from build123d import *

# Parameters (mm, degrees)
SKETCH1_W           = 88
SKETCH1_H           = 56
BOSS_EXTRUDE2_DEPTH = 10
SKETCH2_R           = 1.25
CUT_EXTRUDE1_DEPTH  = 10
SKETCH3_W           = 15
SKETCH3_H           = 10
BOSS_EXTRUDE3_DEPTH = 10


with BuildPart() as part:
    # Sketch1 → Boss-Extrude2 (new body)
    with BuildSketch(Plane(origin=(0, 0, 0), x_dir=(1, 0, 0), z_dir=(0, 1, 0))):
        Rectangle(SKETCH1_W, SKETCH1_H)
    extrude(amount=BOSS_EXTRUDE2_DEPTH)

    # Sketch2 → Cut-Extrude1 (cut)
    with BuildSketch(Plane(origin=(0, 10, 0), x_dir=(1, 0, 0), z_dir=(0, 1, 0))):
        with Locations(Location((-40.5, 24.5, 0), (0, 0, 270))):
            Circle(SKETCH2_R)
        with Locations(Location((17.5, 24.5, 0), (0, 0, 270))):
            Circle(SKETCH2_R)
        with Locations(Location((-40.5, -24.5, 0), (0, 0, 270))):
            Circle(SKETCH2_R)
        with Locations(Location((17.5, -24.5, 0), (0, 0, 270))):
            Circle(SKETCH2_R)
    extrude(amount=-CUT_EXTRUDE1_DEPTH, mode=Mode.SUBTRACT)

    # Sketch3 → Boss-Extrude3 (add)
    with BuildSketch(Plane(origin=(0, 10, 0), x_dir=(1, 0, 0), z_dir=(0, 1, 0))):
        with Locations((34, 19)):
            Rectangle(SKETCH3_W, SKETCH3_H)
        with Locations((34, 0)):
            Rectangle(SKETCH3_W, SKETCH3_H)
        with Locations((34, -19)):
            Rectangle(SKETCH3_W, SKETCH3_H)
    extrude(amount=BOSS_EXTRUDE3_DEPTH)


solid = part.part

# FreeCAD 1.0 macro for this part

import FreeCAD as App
import Part
import Sketcher
from FreeCAD import Vector


def add_polygon(sketch, points):
    """Adds a closed chain of lines whose ends are joined by coincident constraints."""
    first, n = sketch.GeometryCount, len(points)
    for a, b in zip(points, points[1:] + points[:1]):
        sketch.addGeometry(Part.LineSegment(App.Vector(*a, 0), App.Vector(*b, 0)), False)
    for i in range(n):
        sketch.addConstraint(Sketcher.Constraint("Coincident", first + i, 2, first + (i + 1) % n, 1))

doc = App.newDocument("Part")
params = doc.addObject("Spreadsheet::Sheet", "Params")
for row, (alias, value) in enumerate([
    ("sketch1_width", "88 mm"),
    ("sketch1_height", "56 mm"),
    ("pad1_length", "10 mm"),
    ("sketch2_diameter", "2.5 mm"),
    ("pocket1_length", "10 mm"),
    ("sketch3_width", "15 mm"),
    ("sketch3_height", "10 mm"),
    ("pad2_length", "10 mm"),
], start=1):
    params.set(f"A{row}", alias)
    params.set(f"B{row}", "=" + value)
    params.setAlias(f"B{row}", alias)

body = doc.addObject("PartDesign::Body", "Body")

# Sketch on XZ plane
sketch1 = body.newObject("Sketcher::SketchObject", "Sketch")
sketch1.AttachmentSupport = (doc.getObject("XZ_Plane"), [""])
sketch1.MapMode = "FlatFace"
add_polygon(sketch1, [(-44, -28), (-44, 28), (44, 28), (44, -28)])  # lines 0-3
sketch1.addConstraint([
    Sketcher.Constraint("Vertical", 0),
    Sketcher.Constraint("Horizontal", 1),
    Sketcher.Constraint("Vertical", 2),
    Sketcher.Constraint("Horizontal", 3),
    Sketcher.Constraint("Symmetric", 0, 2, 2, 2, -1, 1),
    Sketcher.Constraint("DistanceX", 1, 1, 1, 2, 88.0),
    Sketcher.Constraint("DistanceY", 0, 1, 0, 2, 56.0),
])
sketch1.setExpression("Constraints[9]", "Params.sketch1_width")
sketch1.setExpression("Constraints[10]", "Params.sketch1_height")
pad1 = body.newObject("PartDesign::Pad", "Pad")
pad1.Profile = sketch1
pad1.setExpression("Length", "Params.pad1_length")
pad1.Reversed = True

# Sketch on XZ plane
sketch2 = body.newObject("Sketcher::SketchObject", "Sketch001")
sketch2.AttachmentSupport = (doc.getObject("XZ_Plane"), [""])
sketch2.MapMode = "FlatFace"
sketch2.AttachmentOffset = App.Placement(Vector(0, 0, -10), App.Rotation())
sketch2.addGeometry([
    Part.Circle(Vector(-40.5, -24.5, 0), Vector(0, 0, 1), 1.2),
    Part.Circle(Vector(17.5, -24.5, 0), Vector(0, 0, 1), 1.2),
    Part.Circle(Vector(-40.5, 24.5, 0), Vector(0, 0, 1), 1.2),
    Part.Circle(Vector(17.5, 24.5, 0), Vector(0, 0, 1), 1.2),
], False)
sketch2.addConstraint([
    Sketcher.Constraint("Equal", 0, 1),
    Sketcher.Constraint("Equal", 1, 2),
    Sketcher.Constraint("Equal", 2, 3),
    Sketcher.Constraint("Symmetric", 0, 3, 2, 3, -1),
    Sketcher.Constraint("Symmetric", 1, 3, 3, 3, -1),
    Sketcher.Constraint("Horizontal", 0, 3, 1, 3),
    Sketcher.Constraint("Diameter", 0, 2.5),
    Sketcher.Constraint("DistanceX", 0, 3, 1, 3, 58.0),
    Sketcher.Constraint("DistanceY", 0, 3, 2, 3, 49.0),
    Sketcher.Constraint("DistanceX", 0, 3, -1, 1, 40.5),
])
sketch2.setExpression("Constraints[6]", "Params.sketch2_diameter")
pocket1 = body.newObject("PartDesign::Pocket", "Pocket")
pocket1.Profile = sketch2
pocket1.setExpression("Length", "Params.pocket1_length")
pocket1.Reversed = True

# Sketch on XZ plane
sketch3 = body.newObject("Sketcher::SketchObject", "Sketch002")
sketch3.AttachmentSupport = (doc.getObject("XZ_Plane"), [""])
sketch3.MapMode = "FlatFace"
sketch3.AttachmentOffset = App.Placement(Vector(0, 0, -10), App.Rotation())
add_polygon(sketch3, [(26, -24), (26, -14), (42, -14), (42, -24)])  # lines 0-3
add_polygon(sketch3, [(26, -5), (26, 5), (42, 5), (42, -5)])  # lines 4-7
add_polygon(sketch3, [(26, 14), (26, 24), (42, 24), (42, 14)])  # lines 8-11
sketch3.addConstraint([
    Sketcher.Constraint("Vertical", 0),
    Sketcher.Constraint("Horizontal", 1),
    Sketcher.Constraint("Vertical", 2),
    Sketcher.Constraint("Horizontal", 3),
    Sketcher.Constraint("Vertical", 4),
    Sketcher.Constraint("Horizontal", 5),
    Sketcher.Constraint("Vertical", 6),
    Sketcher.Constraint("Horizontal", 7),
    Sketcher.Constraint("Vertical", 8),
    Sketcher.Constraint("Horizontal", 9),
    Sketcher.Constraint("Vertical", 10),
    Sketcher.Constraint("Horizontal", 11),
    Sketcher.Constraint("Symmetric", 3, 2, 8, 2, -1),
    Sketcher.Constraint("Symmetric", 1, 2, 10, 2, -1),
    Sketcher.Constraint("Vertical", 3, 2, 4, 2),
    Sketcher.Constraint("Vertical", 2, 2, 5, 2),
    Sketcher.Constraint("Equal", 2, 4),
    Sketcher.Constraint("DistanceX", 1, 1, 1, 2, 15.0),
    Sketcher.Constraint("DistanceY", 0, 1, 0, 2, 10.0),
    Sketcher.Constraint("DistanceY", 0, 2, -1, 1, 14.0),
    Sketcher.Constraint("DistanceY", -1, 1, 4, 2, 5.0),
    Sketcher.Constraint("DistanceX", -1, 1, 0, 2, 26.5),
])
sketch3.setExpression("Constraints[29]", "Params.sketch3_width")
sketch3.setExpression("Constraints[30]", "Params.sketch3_height")
pad2 = body.newObject("PartDesign::Pad", "Pad001")
pad2.Profile = sketch3
pad2.setExpression("Length", "Params.pad2_length")
pad2.Reversed = True

doc.recompute()
